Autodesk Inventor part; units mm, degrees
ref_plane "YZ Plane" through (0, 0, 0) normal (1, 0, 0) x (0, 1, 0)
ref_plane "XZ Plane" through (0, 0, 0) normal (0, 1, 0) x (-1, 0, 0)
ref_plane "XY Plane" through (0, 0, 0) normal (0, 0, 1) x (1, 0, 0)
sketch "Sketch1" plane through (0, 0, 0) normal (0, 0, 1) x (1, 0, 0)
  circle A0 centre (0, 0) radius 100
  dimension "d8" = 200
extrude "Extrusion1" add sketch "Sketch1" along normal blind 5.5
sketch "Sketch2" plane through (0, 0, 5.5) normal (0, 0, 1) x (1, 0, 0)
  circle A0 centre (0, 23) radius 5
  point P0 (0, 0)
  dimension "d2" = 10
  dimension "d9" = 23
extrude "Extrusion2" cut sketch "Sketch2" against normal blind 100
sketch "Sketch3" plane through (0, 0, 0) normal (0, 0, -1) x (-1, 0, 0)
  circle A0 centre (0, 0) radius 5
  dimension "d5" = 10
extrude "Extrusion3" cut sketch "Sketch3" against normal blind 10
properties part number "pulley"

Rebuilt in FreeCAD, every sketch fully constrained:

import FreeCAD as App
import Part
import Sketcher

V = App.Vector

doc = App.newDocument("Part")
body = doc.addObject("PartDesign::Body", "Body")

# Sketch on XY plane
sketch1 = body.newObject("Sketcher::SketchObject", "Sketch")
sketch1.AttachmentSupport = (doc.getObject("XY_Plane"), [""])
sketch1.MapMode = "FlatFace"
sketch1.addGeometry(Part.Circle(V(0, 0, 0), V(0, 0, 1), 100), False)
sketch1.addConstraint(Sketcher.Constraint("Coincident", 0, 3, -1, 1))
sketch1.addConstraint(Sketcher.Constraint("Diameter", 0, 200.0))
pad1 = body.newObject("PartDesign::Pad", "Pad")
pad1.Profile = sketch1
pad1.Length = 5.5

# Sketch on XY plane
sketch2 = body.newObject("Sketcher::SketchObject", "Sketch001")
sketch2.AttachmentSupport = (doc.getObject("XY_Plane"), [""])
sketch2.MapMode = "FlatFace"
sketch2.AttachmentOffset = App.Placement(V(0, 0, 5.5), App.Rotation())
sketch2.addGeometry(Part.Circle(V(0, 23, 0), V(0, 0, 1), 5), False)
sketch2.addConstraint(Sketcher.Constraint("PointOnObject", 0, 3, -2))
sketch2.addConstraint(Sketcher.Constraint("Diameter", 0, 10.0))
sketch2.addConstraint(Sketcher.Constraint("DistanceY", -1, 1, 0, 3, 23.0))
pocket1 = body.newObject("PartDesign::Pocket", "Pocket")
pocket1.Profile = sketch2
pocket1.Length = 100

# Sketch on XY plane
sketch3 = body.newObject("Sketcher::SketchObject", "Sketch002")
sketch3.AttachmentSupport = (doc.getObject("XY_Plane"), [""])
sketch3.MapMode = "FlatFace"
sketch3.addGeometry(Part.Circle(V(0, 0, 0), V(0, 0, 1), 5), False)
sketch3.addConstraint(Sketcher.Constraint("Coincident", 0, 3, -1, 1))
sketch3.addConstraint(Sketcher.Constraint("Diameter", 0, 10.0))
pocket2 = body.newObject("PartDesign::Pocket", "Pocket001")
pocket2.Profile = sketch3
pocket2.Length = 10
pocket2.Reversed = True

doc.recompute()
